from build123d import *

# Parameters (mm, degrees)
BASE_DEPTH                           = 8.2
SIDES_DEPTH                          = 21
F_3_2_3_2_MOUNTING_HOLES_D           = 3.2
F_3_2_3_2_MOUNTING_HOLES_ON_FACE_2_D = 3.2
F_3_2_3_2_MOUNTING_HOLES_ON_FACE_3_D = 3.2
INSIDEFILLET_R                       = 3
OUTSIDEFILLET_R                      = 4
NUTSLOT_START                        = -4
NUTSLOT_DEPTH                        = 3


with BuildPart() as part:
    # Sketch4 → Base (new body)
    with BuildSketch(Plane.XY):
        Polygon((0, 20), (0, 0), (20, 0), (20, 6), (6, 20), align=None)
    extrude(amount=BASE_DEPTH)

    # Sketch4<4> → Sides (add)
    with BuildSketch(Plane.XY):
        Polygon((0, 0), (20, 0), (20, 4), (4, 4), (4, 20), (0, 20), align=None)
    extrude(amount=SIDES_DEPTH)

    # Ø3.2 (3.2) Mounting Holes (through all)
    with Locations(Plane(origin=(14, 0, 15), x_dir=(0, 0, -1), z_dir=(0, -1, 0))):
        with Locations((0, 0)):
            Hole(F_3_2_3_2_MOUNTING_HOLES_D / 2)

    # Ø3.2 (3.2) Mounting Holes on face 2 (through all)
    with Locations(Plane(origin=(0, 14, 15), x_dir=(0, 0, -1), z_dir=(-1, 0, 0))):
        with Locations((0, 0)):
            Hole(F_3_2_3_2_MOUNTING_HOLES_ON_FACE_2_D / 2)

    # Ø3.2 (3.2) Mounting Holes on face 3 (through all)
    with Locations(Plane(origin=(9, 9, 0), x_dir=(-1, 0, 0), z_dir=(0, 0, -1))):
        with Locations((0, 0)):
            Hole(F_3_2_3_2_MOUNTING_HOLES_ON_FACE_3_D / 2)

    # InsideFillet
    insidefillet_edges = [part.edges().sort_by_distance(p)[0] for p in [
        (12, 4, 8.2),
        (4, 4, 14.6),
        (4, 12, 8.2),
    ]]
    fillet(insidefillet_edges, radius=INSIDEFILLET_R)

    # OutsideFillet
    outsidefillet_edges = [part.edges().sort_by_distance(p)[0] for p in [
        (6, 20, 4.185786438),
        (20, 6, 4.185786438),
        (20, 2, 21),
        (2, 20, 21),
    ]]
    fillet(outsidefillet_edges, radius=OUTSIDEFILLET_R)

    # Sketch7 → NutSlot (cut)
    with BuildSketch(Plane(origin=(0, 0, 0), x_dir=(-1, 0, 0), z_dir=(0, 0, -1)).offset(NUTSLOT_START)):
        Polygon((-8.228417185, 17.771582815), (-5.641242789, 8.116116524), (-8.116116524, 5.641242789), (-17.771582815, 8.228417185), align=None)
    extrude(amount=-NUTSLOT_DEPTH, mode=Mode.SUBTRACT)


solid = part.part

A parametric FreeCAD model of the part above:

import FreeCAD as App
import Part
import Sketcher
from FreeCAD import Vector
Q = App.Units.Quantity


def edges_at(feature, points):
    """Names of the edges that pass closest to the given points."""
    edges = feature.Shape.Edges
    near = lambda p: min(range(len(edges)), key=lambda i: edges[i].distToShape(Part.Vertex(*p))[0])
    return sorted({f"Edge{near(p) + 1}" for p in points})

doc = App.newDocument("Part")
params = doc.addObject("Spreadsheet::Sheet", "Params")
for row, (alias, value) in enumerate([
    ("sketch1_width", "20 mm"),
    ("sketch1_width2", "6 mm"),
    ("pad1_length", "8.2 mm"),
    ("sketch2_width", "20 mm"),
    ("sketch2_width2", "16 mm"),
    ("pad2_length", "21 mm"),
    ("sketch3_diameter", "3.2 mm"),
    ("hole_diameter", "3.2 mm"),
    ("sketch4_diameter", "3.2 mm"),
    ("hole2_diameter", "3.2 mm"),
    ("sketch5_diameter", "3.2 mm"),
    ("hole3_diameter", "3.2 mm"),
    ("fillet_radius", "3 mm"),
    ("fillet2_radius", "4 mm"),
    ("sketch6_length", "3.5 mm"),
    ("pocket1_length", "3 mm"),
], start=1):
    params.set(f"A{row}", alias)
    params.set(f"B{row}", "=" + value)
    params.setAlias(f"B{row}", alias)

body = doc.addObject("PartDesign::Body", "Body")

sketch1 = doc.addObject("Sketcher::SketchObject", "Sketch")
body.addObject(sketch1)
sketch1.AttachmentSupport = (doc.XY_Plane, [""])
sketch1.MapMode = "FlatFace"
sketch1.addGeometry([
    Part.LineSegment(Vector(0, 20, 0), Vector(0, 0, 0)),
    Part.LineSegment(Vector(0, 0, 0), Vector(20, 0, 0)),
    Part.LineSegment(Vector(20, 0, 0), Vector(20, 6, 0)),
    Part.LineSegment(Vector(20, 6, 0), Vector(6, 20, 0)),
    Part.LineSegment(Vector(6, 20, 0), Vector(0, 20, 0)),
], False)
sketch1.addConstraint([
    Sketcher.Constraint("Coincident", 0, 2, 1, 1),
    Sketcher.Constraint("Coincident", 1, 2, 2, 1),
    Sketcher.Constraint("Coincident", 2, 2, 3, 1),
    Sketcher.Constraint("Coincident", 3, 2, 4, 1),
    Sketcher.Constraint("Coincident", 4, 2, 0, 1),
    Sketcher.Constraint("Vertical", 0),
    Sketcher.Constraint("Horizontal", 1),
    Sketcher.Constraint("Vertical", 2),
    Sketcher.Constraint("Horizontal", 4),
    Sketcher.Constraint("Coincident", 0, 2, -1, 1),
    Sketcher.Constraint("Equal", 1, 0),
    Sketcher.Constraint("Equal", 4, 2),
    Sketcher.Constraint("DistanceX", 1, 1, 1, 2, Q("20 mm")),
    Sketcher.Constraint("DistanceX", 4, 2, 4, 1, Q("6 mm")),
])
sketch1.setExpression("Constraints[12]", "Params.sketch1_width")
sketch1.setExpression("Constraints[13]", "Params.sketch1_width2")
pad1 = doc.addObject("PartDesign::Pad", "Pad")
body.addObject(pad1)
pad1.Profile = sketch1
pad1.setExpression("Length", "Params.pad1_length")

sketch2 = doc.addObject("Sketcher::SketchObject", "Sketch001")
body.addObject(sketch2)
sketch2.AttachmentSupport = (doc.XY_Plane, [""])
sketch2.MapMode = "FlatFace"
sketch2.addGeometry([
    Part.LineSegment(Vector(0, 0, 0), Vector(20, 0, 0)),
    Part.LineSegment(Vector(20, 0, 0), Vector(20, 4, 0)),
    Part.LineSegment(Vector(20, 4, 0), Vector(4, 4, 0)),
    Part.LineSegment(Vector(4, 4, 0), Vector(4, 20, 0)),
    Part.LineSegment(Vector(4, 20, 0), Vector(0, 20, 0)),
    Part.LineSegment(Vector(0, 20, 0), Vector(0, 0, 0)),
], False)
sketch2.addConstraint([
    Sketcher.Constraint("Coincident", 0, 2, 1, 1),
    Sketcher.Constraint("Coincident", 1, 2, 2, 1),
    Sketcher.Constraint("Coincident", 2, 2, 3, 1),
    Sketcher.Constraint("Coincident", 3, 2, 4, 1),
    Sketcher.Constraint("Coincident", 4, 2, 5, 1),
    Sketcher.Constraint("Coincident", 5, 2, 0, 1),
    Sketcher.Constraint("Horizontal", 0),
    Sketcher.Constraint("Vertical", 1),
    Sketcher.Constraint("Horizontal", 2),
    Sketcher.Constraint("Vertical", 3),
    Sketcher.Constraint("Horizontal", 4),
    Sketcher.Constraint("Vertical", 5),
    Sketcher.Constraint("Coincident", 5, 2, -1, 1),
    Sketcher.Constraint("Equal", 4, 1),
    Sketcher.Constraint("Equal", 2, 3),
    Sketcher.Constraint("DistanceX", 0, 1, 0, 2, Q("20 mm")),
    Sketcher.Constraint("DistanceX", 2, 2, 2, 1, Q("16 mm")),
])
sketch2.setExpression("Constraints[15]", "Params.sketch2_width")
sketch2.setExpression("Constraints[16]", "Params.sketch2_width2")
pad2 = doc.addObject("PartDesign::Pad", "Pad001")
body.addObject(pad2)
pad2.Profile = sketch2
pad2.setExpression("Length", "Params.pad2_length")

sketch3 = doc.addObject("Sketcher::SketchObject", "Sketch002")
body.addObject(sketch3)
sketch3.AttachmentSupport = (doc.XZ_Plane, [""])
sketch3.MapMode = "FlatFace"
sketch3.addGeometry(Part.Circle(Vector(14, 15, 0), Vector(0, 0, 1), 1.6), False)
sketch3.addConstraint([
    Sketcher.Constraint("Diameter", 0, Q("3.2 mm")),
    Sketcher.Constraint("DistanceX", -1, 1, 0, 3, Q("14 mm")),
    Sketcher.Constraint("DistanceY", -1, 1, 0, 3, Q("15 mm")),
])
sketch3.setExpression("Constraints[0]", "Params.sketch3_diameter")
doc.recompute()
hole = doc.addObject("PartDesign::Hole", "Hole")
body.addObject(hole)
hole.Profile = sketch3
hole.ThreadType = "None"
hole.setExpression("Diameter", "Params.hole_diameter")
hole.DepthType = "ThroughAll"

sketch4 = doc.addObject("Sketcher::SketchObject", "Sketch003")
body.addObject(sketch4)
sketch4.AttachmentSupport = (doc.YZ_Plane, [""])
sketch4.MapMode = "FlatFace"
sketch4.addGeometry(Part.Circle(Vector(14, 15, 0), Vector(0, 0, 1), 1.6), False)
sketch4.addConstraint([
    Sketcher.Constraint("Diameter", 0, Q("3.2 mm")),
    Sketcher.Constraint("DistanceX", -1, 1, 0, 3, Q("14 mm")),
    Sketcher.Constraint("DistanceY", -1, 1, 0, 3, Q("15 mm")),
])
sketch4.setExpression("Constraints[0]", "Params.sketch4_diameter")
doc.recompute()
hole2 = doc.addObject("PartDesign::Hole", "Hole001")
body.addObject(hole2)
hole2.Profile = sketch4
hole2.ThreadType = "None"
hole2.setExpression("Diameter", "Params.hole2_diameter")
hole2.DepthType = "ThroughAll"
hole2.Reversed = True

sketch5 = doc.addObject("Sketcher::SketchObject", "Sketch004")
body.addObject(sketch5)
sketch5.AttachmentSupport = (doc.XY_Plane, [""])
sketch5.MapMode = "FlatFace"
sketch5.addGeometry(Part.Circle(Vector(9, 9, 0), Vector(0, 0, 1), 1.6), False)
sketch5.addConstraint([
    Sketcher.Constraint("Diameter", 0, Q("3.2 mm")),
    Sketcher.Constraint("DistanceX", -1, 1, 0, 3, Q("9 mm")),
    Sketcher.Constraint("DistanceY", -1, 1, 0, 3, Q("9 mm")),
])
sketch5.setExpression("Constraints[0]", "Params.sketch5_diameter")
doc.recompute()
hole3 = doc.addObject("PartDesign::Hole", "Hole002")
body.addObject(hole3)
hole3.Profile = sketch5
hole3.ThreadType = "None"
hole3.setExpression("Diameter", "Params.hole3_diameter")
hole3.DepthType = "ThroughAll"
hole3.Reversed = True
doc.recompute()

fillet = doc.addObject("PartDesign::Fillet", "Fillet")
body.addObject(fillet)
fillet.Base = (hole3, edges_at(hole3, [(12, 4, 8.2), (4, 4, 14.6), (4, 12, 8.2)]))
fillet.setExpression("Radius", "Params.fillet_radius")
doc.recompute()

fillet2 = doc.addObject("PartDesign::Fillet", "Fillet001")
body.addObject(fillet2)
fillet2.Base = (fillet, edges_at(fillet, [
    (6, 20, 4.186),
    (20, 6, 4.186),
    (20, 2, 21),
    (2, 20, 21),
]))
fillet2.setExpression("Radius", "Params.fillet2_radius")

sketch6 = doc.addObject("Sketcher::SketchObject", "Sketch005")
body.addObject(sketch6)
sketch6.AttachmentSupport = (doc.XY_Plane, [""])
sketch6.MapMode = "FlatFace"
sketch6.AttachmentOffset = App.Placement(Vector(0, 0, 4), App.Rotation())
sketch6.addGeometry([
    Part.LineSegment(Vector(5.641243, 8.116117, 0), Vector(8.228417, 17.771583, 0)),
    Part.LineSegment(Vector(8.228417, 17.771583, 0), Vector(17.771583, 8.228417, 0)),
    Part.LineSegment(Vector(17.771583, 8.228417, 0), Vector(8.116117, 5.641243, 0)),
    Part.LineSegment(Vector(8.116117, 5.641243, 0), Vector(5.641243, 8.116117, 0)),
], False)
sketch6.addConstraint([
    Sketcher.Constraint("Coincident", 0, 2, 1, 1),
    Sketcher.Constraint("Coincident", 1, 2, 2, 1),
    Sketcher.Constraint("Coincident", 2, 2, 3, 1),
    Sketcher.Constraint("Coincident", 3, 2, 0, 1),
    Sketcher.Constraint("Parallel", 1, 3),
    Sketcher.Constraint("Equal", 0, 2),
    Sketcher.Constraint("Angle", 0, Q("75 deg")),
    Sketcher.Constraint("Angle", 1, Q("-45 deg")),
    Sketcher.Constraint("Distance", 3, Q("3.5 mm")),
    Sketcher.Constraint("DistanceX", 2, 2, 0, 2, Q("0.112301 mm")),
    Sketcher.Constraint("DistanceX", -1, 1, 0, 2, Q("8.228417 mm")),
    Sketcher.Constraint("DistanceY", -1, 1, 0, 2, Q("17.771583 mm")),
])
sketch6.setExpression("Constraints[8]", "Params.sketch6_length")
pocket1 = doc.addObject("PartDesign::Pocket", "Pocket")
body.addObject(pocket1)
pocket1.Profile = sketch6
pocket1.setExpression("Length", "Params.pocket1_length")
pocket1.Reversed = True

doc.recompute()
